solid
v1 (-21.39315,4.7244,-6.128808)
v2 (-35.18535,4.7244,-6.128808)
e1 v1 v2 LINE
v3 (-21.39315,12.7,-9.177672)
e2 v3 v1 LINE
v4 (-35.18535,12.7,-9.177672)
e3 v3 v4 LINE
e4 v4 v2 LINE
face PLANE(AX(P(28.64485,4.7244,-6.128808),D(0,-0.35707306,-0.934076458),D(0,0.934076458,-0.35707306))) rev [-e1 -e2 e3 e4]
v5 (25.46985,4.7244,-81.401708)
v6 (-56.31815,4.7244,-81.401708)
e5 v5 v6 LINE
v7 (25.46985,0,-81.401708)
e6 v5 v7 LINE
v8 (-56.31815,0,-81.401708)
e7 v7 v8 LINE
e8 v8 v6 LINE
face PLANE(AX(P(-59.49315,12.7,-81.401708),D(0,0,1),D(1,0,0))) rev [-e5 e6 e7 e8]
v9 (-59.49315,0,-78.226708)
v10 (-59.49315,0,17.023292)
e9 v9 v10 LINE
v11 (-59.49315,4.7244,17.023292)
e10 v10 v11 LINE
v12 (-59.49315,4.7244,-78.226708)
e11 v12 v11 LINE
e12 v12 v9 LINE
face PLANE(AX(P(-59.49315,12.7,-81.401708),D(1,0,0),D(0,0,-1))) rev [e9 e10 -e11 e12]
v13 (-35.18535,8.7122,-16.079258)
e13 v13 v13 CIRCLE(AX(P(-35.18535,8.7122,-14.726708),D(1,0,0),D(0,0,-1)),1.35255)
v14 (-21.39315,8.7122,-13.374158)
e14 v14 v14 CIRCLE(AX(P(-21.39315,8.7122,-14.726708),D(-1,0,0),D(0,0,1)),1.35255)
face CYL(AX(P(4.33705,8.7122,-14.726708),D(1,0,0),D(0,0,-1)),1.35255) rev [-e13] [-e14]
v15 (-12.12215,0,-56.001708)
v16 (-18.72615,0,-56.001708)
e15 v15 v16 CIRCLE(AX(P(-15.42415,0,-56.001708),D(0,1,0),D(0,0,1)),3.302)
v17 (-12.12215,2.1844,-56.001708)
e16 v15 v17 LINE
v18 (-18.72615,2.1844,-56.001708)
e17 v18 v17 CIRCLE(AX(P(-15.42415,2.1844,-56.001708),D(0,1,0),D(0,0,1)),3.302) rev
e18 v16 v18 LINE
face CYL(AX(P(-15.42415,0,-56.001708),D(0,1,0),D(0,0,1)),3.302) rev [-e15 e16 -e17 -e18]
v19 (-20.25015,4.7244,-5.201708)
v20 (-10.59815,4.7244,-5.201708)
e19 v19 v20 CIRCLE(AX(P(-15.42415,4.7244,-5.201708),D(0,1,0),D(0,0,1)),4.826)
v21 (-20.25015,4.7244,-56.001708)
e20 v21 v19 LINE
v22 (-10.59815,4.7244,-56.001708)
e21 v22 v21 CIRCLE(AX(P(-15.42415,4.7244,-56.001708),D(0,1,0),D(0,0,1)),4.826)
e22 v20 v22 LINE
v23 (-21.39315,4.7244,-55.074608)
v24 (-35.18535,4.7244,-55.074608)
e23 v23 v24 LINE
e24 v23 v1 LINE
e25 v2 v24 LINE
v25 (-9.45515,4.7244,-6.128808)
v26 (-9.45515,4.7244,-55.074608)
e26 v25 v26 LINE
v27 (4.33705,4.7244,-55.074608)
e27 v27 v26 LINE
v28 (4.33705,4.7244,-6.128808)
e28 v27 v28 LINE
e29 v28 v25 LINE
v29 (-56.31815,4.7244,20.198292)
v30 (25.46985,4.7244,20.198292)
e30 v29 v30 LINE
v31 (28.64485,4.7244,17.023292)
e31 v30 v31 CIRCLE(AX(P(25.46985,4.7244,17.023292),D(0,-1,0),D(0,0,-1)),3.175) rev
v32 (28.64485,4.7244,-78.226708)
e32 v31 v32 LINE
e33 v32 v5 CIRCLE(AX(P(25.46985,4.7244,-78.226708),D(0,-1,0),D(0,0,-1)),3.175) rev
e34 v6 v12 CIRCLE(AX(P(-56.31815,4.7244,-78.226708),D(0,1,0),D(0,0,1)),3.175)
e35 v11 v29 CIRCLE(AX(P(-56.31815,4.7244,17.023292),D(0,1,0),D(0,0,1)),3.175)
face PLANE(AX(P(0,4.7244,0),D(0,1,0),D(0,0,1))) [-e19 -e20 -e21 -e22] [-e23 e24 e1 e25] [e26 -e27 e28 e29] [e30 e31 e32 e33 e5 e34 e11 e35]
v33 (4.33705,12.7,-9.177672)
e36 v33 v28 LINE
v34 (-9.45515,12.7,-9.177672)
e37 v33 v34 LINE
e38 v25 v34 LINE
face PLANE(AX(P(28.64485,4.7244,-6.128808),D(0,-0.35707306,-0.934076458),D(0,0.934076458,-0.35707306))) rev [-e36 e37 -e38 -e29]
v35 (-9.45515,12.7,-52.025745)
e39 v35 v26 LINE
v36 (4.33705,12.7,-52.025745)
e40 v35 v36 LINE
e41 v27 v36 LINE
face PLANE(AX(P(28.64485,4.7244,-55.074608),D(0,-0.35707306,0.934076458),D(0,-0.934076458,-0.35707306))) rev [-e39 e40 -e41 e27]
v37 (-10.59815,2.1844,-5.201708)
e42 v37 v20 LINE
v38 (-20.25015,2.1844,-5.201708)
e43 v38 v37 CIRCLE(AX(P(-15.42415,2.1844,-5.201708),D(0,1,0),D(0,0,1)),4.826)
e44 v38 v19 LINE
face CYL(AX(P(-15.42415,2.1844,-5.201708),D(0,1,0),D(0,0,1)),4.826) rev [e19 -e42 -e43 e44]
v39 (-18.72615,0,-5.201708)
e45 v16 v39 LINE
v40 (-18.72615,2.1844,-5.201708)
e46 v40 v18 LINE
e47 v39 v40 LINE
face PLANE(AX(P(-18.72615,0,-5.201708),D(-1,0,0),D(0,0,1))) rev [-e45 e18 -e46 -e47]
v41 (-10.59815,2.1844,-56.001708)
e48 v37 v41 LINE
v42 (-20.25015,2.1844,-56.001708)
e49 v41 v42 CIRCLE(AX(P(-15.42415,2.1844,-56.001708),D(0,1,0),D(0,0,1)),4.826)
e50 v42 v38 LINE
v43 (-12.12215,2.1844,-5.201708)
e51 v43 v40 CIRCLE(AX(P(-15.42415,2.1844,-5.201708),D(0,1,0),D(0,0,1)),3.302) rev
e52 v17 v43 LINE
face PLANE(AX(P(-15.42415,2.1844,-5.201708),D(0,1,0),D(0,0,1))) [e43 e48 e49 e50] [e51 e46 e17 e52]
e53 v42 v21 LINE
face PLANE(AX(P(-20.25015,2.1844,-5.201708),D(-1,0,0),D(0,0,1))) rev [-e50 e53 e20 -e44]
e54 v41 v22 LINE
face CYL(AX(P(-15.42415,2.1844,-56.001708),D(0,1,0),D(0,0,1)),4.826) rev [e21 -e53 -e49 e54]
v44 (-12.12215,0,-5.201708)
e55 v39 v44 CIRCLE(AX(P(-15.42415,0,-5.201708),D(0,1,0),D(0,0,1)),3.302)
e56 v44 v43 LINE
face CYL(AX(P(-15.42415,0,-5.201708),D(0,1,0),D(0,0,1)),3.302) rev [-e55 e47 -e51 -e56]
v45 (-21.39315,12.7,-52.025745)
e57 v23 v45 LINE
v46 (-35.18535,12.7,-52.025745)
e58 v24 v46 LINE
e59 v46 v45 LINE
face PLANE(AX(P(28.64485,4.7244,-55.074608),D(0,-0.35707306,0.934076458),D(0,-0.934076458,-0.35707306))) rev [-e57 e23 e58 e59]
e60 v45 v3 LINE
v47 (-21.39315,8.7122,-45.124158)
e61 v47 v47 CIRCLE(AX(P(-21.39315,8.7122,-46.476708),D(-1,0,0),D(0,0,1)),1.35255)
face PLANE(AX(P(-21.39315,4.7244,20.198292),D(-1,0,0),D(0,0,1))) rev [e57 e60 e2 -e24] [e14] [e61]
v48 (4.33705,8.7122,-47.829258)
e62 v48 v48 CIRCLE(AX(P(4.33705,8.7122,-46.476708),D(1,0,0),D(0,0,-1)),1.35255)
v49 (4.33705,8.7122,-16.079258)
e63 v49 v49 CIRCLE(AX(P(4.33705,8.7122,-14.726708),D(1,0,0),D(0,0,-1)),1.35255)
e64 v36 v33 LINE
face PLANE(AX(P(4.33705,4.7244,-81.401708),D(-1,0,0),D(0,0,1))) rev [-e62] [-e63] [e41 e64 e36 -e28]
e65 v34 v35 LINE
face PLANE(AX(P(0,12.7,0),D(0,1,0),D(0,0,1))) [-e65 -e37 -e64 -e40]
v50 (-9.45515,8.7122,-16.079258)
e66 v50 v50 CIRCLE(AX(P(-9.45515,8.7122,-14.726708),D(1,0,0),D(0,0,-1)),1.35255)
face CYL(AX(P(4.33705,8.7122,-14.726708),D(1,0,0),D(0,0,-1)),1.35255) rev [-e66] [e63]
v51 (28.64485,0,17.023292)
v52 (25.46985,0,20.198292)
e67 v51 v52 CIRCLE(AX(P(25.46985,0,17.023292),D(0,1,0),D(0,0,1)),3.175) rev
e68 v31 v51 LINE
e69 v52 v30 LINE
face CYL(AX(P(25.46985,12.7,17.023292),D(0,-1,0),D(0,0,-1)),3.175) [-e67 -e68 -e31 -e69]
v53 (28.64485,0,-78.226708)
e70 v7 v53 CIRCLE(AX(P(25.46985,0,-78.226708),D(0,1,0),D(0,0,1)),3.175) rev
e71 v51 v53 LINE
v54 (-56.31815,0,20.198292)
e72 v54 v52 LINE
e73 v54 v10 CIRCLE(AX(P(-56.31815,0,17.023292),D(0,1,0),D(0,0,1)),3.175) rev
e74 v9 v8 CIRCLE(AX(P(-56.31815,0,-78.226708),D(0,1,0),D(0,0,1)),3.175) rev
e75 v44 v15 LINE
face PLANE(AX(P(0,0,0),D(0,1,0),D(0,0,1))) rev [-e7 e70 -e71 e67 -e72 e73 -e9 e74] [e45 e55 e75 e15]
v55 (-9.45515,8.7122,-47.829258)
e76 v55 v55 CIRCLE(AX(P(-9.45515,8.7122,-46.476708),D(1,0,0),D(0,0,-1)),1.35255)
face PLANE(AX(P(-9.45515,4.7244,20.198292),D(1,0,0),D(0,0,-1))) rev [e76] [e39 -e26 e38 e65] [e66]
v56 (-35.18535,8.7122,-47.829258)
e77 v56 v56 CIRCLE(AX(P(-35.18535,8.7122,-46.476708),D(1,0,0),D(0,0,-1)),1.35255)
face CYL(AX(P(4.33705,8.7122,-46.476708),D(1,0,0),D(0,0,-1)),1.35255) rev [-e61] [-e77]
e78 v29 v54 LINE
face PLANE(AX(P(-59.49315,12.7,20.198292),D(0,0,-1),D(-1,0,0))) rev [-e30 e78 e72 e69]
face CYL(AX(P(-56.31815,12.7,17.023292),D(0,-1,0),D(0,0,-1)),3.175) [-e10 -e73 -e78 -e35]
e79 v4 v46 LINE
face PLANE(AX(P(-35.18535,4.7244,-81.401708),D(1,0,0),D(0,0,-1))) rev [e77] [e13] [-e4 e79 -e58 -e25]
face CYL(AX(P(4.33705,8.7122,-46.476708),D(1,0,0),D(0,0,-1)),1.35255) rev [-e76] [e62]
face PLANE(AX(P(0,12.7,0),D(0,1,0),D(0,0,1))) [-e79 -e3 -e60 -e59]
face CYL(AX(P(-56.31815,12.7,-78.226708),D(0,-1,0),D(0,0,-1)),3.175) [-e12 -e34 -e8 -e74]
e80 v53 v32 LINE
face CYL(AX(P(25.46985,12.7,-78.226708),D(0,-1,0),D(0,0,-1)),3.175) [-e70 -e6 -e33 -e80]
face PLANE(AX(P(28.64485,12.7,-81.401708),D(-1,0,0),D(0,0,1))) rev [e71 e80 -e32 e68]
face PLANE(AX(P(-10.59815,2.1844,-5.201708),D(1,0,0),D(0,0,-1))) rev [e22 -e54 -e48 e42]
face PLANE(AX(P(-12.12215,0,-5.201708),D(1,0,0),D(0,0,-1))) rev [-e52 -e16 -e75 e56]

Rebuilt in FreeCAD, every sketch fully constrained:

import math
import FreeCAD as App
import Part
import Sketcher

V = App.Vector
Q = App.Units.Quantity


def edges_at(feature, points):
    """Names of the edges that pass closest to the given points."""
    edges = feature.Shape.Edges
    near = lambda p: min(range(len(edges)), key=lambda i: edges[i].distToShape(Part.Vertex(*p))[0])
    return sorted({f"Edge{near(p) + 1}" for p in points})


def add_polygon(sketch, points):
    """Adds a closed chain of lines whose ends are joined by coincident constraints."""
    first, n = sketch.GeometryCount, len(points)
    for a, b in zip(points, points[1:] + points[:1]):
        sketch.addGeometry(Part.LineSegment(App.Vector(*a, 0), App.Vector(*b, 0)), False)
    for i in range(n):
        sketch.addConstraint(Sketcher.Constraint("Coincident", first + i, 2, first + (i + 1) % n, 1))

doc = App.newDocument("Part")
body = doc.addObject("PartDesign::Body", "Body")

# Sketch on XZ plane
sketch1 = body.newObject("Sketcher::SketchObject", "Sketch")
sketch1.AttachmentSupport = (doc.getObject("XZ_Plane"), [""])
sketch1.MapMode = "FlatFace"
add_polygon(sketch1, [(-59, -81), (-59, 20), (29, 20), (29, -81)])  # lines 0-3
sketch1.addConstraint([
    Sketcher.Constraint("Vertical", 0),
    Sketcher.Constraint("Horizontal", 1),
    Sketcher.Constraint("Vertical", 2),
    Sketcher.Constraint("Horizontal", 3),
    Sketcher.Constraint("DistanceY", 0, 1, 0, 2, Q("4 in")),
    Sketcher.Constraint("DistanceX", 1, 1, 1, 2, Q("3.47 in")),
    Sketcher.Constraint("DistanceX", 0, 2, -1, 1, 59.49315),
    Sketcher.Constraint("DistanceY", -1, 1, 0, 2, 20.198292),
])
pad1 = body.newObject("PartDesign::Pad", "Pad")
pad1.Profile = sketch1
pad1.Length = Q("0.5 in")
pad1.Reversed = True

# Sketch on XZ plane
sketch2 = body.newObject("Sketcher::SketchObject", "Sketch001")
sketch2.AttachmentSupport = (doc.getObject("XZ_Plane"), [""])
sketch2.MapMode = "FlatFace"
sketch2.AttachmentOffset = App.Placement(V(0, 0, -0.5 * 25.4), App.Rotation())
add_polygon(sketch2, [(-59, -81), (-59, 20), (-35, 20), (-35, -81)])  # lines 0-3
add_polygon(sketch2, [(4, -81), (4, 20), (29, 20), (29, -81)])  # lines 4-7
add_polygon(sketch2, [(-21, -81), (-21, 20), (-9, 20), (-9, -81)])  # lines 8-11
sketch2.addConstraint([
    Sketcher.Constraint("Vertical", 0),
    Sketcher.Constraint("Horizontal", 1),
    Sketcher.Constraint("Vertical", 2),
    Sketcher.Constraint("Horizontal", 3),
    Sketcher.Constraint("Vertical", 4),
    Sketcher.Constraint("Horizontal", 5),
    Sketcher.Constraint("Vertical", 6),
    Sketcher.Constraint("Horizontal", 7),
    Sketcher.Constraint("Vertical", 8),
    Sketcher.Constraint("Horizontal", 9),
    Sketcher.Constraint("Vertical", 10),
    Sketcher.Constraint("Horizontal", 11),
    Sketcher.Constraint("Horizontal", 1, 2, 4, 2),
    Sketcher.Constraint("Horizontal", 3, 2, 6, 2),
    Sketcher.Constraint("Horizontal", 5, 2, 8, 2),
    Sketcher.Constraint("Horizontal", 7, 2, 10, 2),
    Sketcher.Constraint("Equal", 3, 5),
    Sketcher.Constraint("DistanceY", 0, 1, 0, 2, Q("4 in")),
    Sketcher.Constraint("DistanceX", 9, 1, 9, 2, Q("0.47 in")),
    Sketcher.Constraint("DistanceX", 0, 2, 8, 2, Q("1.5 in")),
    Sketcher.Constraint("DistanceX", 9, 2, 5, 2, Q("1.5 in")),
    Sketcher.Constraint("DistanceX", 1, 1, 1, 2, Q("0.957 in")),
    Sketcher.Constraint("DistanceX", 0, 2, -1, 1, 59.49315),
    Sketcher.Constraint("DistanceY", -1, 1, 0, 2, 20.198292),
])
pocket1 = body.newObject("PartDesign::Pocket", "Pocket")
pocket1.Profile = sketch2
pocket1.Length = Q("0.314 in")
pocket1.Reversed = True

# Sketch on XZ plane
sketch3 = body.newObject("Sketcher::SketchObject", "Sketch002")
sketch3.AttachmentSupport = (doc.getObject("XZ_Plane"), [""])
sketch3.MapMode = "FlatFace"
sketch3.AttachmentOffset = App.Placement(V(0, 0, -0.186 * 25.4), App.Rotation())
sketch3.addGeometry([
    Part.LineSegment(V(-18.7, -56, 0), V(-18.7, -5.2, 0)),
    Part.ArcOfCircle(Part.Circle(V(-15.4, -5.2, 0), V(0, 0, 1), 3.3), math.radians(0), math.radians(180)),
    Part.LineSegment(V(-12.1, -5.2, 0), V(-12.1, -56, 0)),
    Part.ArcOfCircle(Part.Circle(V(-15.4, -56, 0), V(0, 0, 1), 3.3), math.radians(180), math.radians(360)),
], False)
sketch3.addConstraint([
    Sketcher.Constraint("Tangent", 0, 2, 1, 2),
    Sketcher.Constraint("Tangent", 1, 1, 2, 1),
    Sketcher.Constraint("Tangent", 2, 2, 3, 2),
    Sketcher.Constraint("Tangent", 3, 1, 0, 1),
    Sketcher.Constraint("Vertical", 0),
    Sketcher.Constraint("Vertical", 2),
    Sketcher.Constraint("DistanceY", 0, 1, 0, 2, Q("2 in")),
    Sketcher.Constraint("Radius", 1, Q("0.13 in")),
    Sketcher.Constraint("DistanceX", 1, 3, -1, 1, 15.42415),
    Sketcher.Constraint("DistanceY", 1, 3, -1, 1, 5.201708),
])
pocket2 = body.newObject("PartDesign::Pocket", "Pocket001")
pocket2.Profile = sketch3
pocket2.Type = "ThroughAll"
pocket2.Reversed = True

# Sketch on XZ plane
sketch4 = body.newObject("Sketcher::SketchObject", "Sketch003")
sketch4.AttachmentSupport = (doc.getObject("XZ_Plane"), [""])
sketch4.MapMode = "FlatFace"
sketch4.AttachmentOffset = App.Placement(V(0, 0, -0.186 * 25.4), App.Rotation())
sketch4.addGeometry([
    Part.LineSegment(V(-20.3, -56, 0), V(-20.3, -5.2, 0)),
    Part.ArcOfCircle(Part.Circle(V(-15.4, -5.2, 0), V(0, 0, 1), 4.8), math.radians(0), math.radians(180)),
    Part.LineSegment(V(-10.6, -5.2, 0), V(-10.6, -56, 0)),
    Part.ArcOfCircle(Part.Circle(V(-15.4, -56, 0), V(0, 0, 1), 4.8), math.radians(180), math.radians(360)),
], False)
sketch4.addConstraint([
    Sketcher.Constraint("Tangent", 0, 2, 1, 2),
    Sketcher.Constraint("Tangent", 1, 1, 2, 1),
    Sketcher.Constraint("Tangent", 2, 2, 3, 2),
    Sketcher.Constraint("Tangent", 3, 1, 0, 1),
    Sketcher.Constraint("Vertical", 0),
    Sketcher.Constraint("Vertical", 2),
    Sketcher.Constraint("DistanceY", 0, 1, 0, 2, Q("2 in")),
    Sketcher.Constraint("Radius", 1, Q("0.19 in")),
    Sketcher.Constraint("DistanceX", 1, 3, -1, 1, 15.42415),
    Sketcher.Constraint("DistanceY", 1, 3, -1, 1, 5.201708),
])
pocket3 = body.newObject("PartDesign::Pocket", "Pocket002")
pocket3.Profile = sketch4
pocket3.Length = Q("0.1 in")
pocket3.Reversed = True

# Sketch on YZ plane
sketch5 = body.newObject("Sketcher::SketchObject", "Sketch004")
sketch5.AttachmentSupport = (doc.getObject("YZ_Plane"), [""])
sketch5.MapMode = "FlatFace"
sketch5.AttachmentOffset = App.Placement(V(0, 0, 4.33705), App.Rotation())
sketch5.addGeometry([
    Part.Circle(V(8.7, -14.7, 0), V(0, 0, 1), 1.4),
    Part.Circle(V(8.7, -46.5, 0), V(0, 0, 1), 1.4),
], False)
sketch5.addConstraint([
    Sketcher.Constraint("Equal", 0, 1),
    Sketcher.Constraint("Vertical", 0, 3, 1, 3),
    Sketcher.Constraint("Diameter", 0, Q("0.1065 in")),
    Sketcher.Constraint("DistanceY", 1, 3, 0, 3, Q("1.25 in")),
    Sketcher.Constraint("DistanceX", -1, 1, 0, 3, Q("0.343 in")),
    Sketcher.Constraint("DistanceY", 0, 3, -1, 1, 14.726708),
])
doc.recompute()
hole = body.newObject("PartDesign::Hole", "Hole")
hole.Profile = sketch5
hole.ThreadType = "None"
hole.Diameter = Q("0.1065 in")
hole.DepthType = "ThroughAll"
doc.recompute()

fillet = body.newObject("PartDesign::Fillet", "Fillet")
fillet.Base = (hole, edges_at(hole, [
    (-59.493, 2.362, -81.402),
    (-59.493, 2.362, 20.198),
    (28.645, 2.362, -81.402),
    (28.645, 2.362, 20.198),
]))
fillet.Radius = Q("0.125 in")

# Sketch on YZ plane
sketch6 = body.newObject("Sketcher::SketchObject", "Sketch005")
sketch6.AttachmentSupport = (doc.getObject("YZ_Plane"), [""])
sketch6.MapMode = "FlatFace"
sketch6.AttachmentOffset = App.Placement(V(0, 0, -35.18535), App.Rotation())
add_polygon(sketch6, [(13, -9), (5, -6), (5, 20), (13, 20)])  # lines 0-3
add_polygon(sketch6, [(5, -55), (13, -52), (13, -81), (5, -81)])  # lines 4-7
sketch6.addConstraint([
    Sketcher.Constraint("Vertical", 1),
    Sketcher.Constraint("Horizontal", 2),
    Sketcher.Constraint("Horizontal", 6),
    Sketcher.Constraint("Vertical", 7),
    Sketcher.Constraint("Vertical", 3, 2, 4, 2),
    Sketcher.Constraint("Vertical", 2, 2, 5, 2),
    Sketcher.Constraint("Vertical", 1, 2, 6, 2),
    Sketcher.Constraint("Equal", 1, 7),
    Sketcher.Constraint("Equal", 0, 4),
    Sketcher.Constraint("DistanceY", 5, 2, 2, 2, Q("4 in")),
    Sketcher.Constraint("DistanceX", -1, 1, 2, 2, Q("0.5 in")),
    Sketcher.Constraint("DistanceX", 2, 1, 2, 2, Q("0.314 in")),
    Sketcher.Constraint("DistanceY", 1, 1, 1, 2, Q("1.0365 in")),
    Sketcher.Constraint("DistanceX", -1, 1, 3, 2, Q("0.503 in")),
    Sketcher.Constraint("DistanceY", 3, 2, -1, 1, 9.206801),
    Sketcher.Constraint("Distance", 3, 29.405192),
])
pocket4 = body.newObject("PartDesign::Pocket", "Pocket003")
pocket4.Profile = sketch6
pocket4.Type = "ThroughAll"
pocket4.Reversed = True

doc.recompute()
